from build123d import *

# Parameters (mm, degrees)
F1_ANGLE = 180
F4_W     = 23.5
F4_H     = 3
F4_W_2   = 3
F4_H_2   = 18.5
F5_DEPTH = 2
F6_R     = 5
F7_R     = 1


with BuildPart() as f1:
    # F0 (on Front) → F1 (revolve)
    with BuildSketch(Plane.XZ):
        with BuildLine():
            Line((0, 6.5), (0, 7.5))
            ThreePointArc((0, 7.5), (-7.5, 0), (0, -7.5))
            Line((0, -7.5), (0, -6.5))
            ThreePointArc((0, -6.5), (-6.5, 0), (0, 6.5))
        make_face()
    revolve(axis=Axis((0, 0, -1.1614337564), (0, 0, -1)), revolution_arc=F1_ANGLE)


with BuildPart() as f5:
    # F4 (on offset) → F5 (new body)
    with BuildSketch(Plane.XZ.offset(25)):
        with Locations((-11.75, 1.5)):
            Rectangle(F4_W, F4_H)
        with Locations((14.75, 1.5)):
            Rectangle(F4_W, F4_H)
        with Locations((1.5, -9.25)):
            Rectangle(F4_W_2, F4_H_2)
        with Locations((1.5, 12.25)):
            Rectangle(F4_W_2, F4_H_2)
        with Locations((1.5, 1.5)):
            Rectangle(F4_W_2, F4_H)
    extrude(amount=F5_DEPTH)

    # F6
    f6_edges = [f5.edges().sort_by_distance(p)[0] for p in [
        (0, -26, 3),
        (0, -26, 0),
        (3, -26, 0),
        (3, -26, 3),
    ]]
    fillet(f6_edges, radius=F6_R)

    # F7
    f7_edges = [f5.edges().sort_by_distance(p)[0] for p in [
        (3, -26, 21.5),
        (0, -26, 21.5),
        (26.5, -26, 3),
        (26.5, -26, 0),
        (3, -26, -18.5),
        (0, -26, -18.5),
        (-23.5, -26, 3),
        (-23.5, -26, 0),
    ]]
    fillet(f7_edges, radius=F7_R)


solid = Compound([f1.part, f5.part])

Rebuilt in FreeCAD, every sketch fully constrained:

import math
import FreeCAD as App
import Part
import Sketcher
from FreeCAD import Vector
Q = App.Units.Quantity


def edges_at(feature, points):
    """Names of the edges that pass closest to the given points."""
    edges = feature.Shape.Edges
    near = lambda p: min(range(len(edges)), key=lambda i: edges[i].distToShape(Part.Vertex(*p))[0])
    return sorted({f"Edge{near(p) + 1}" for p in points})


def add_polygon(sketch, points):
    """Adds a closed chain of lines whose ends are joined by coincident constraints."""
    first, n = sketch.GeometryCount, len(points)
    for a, b in zip(points, points[1:] + points[:1]):
        sketch.addGeometry(Part.LineSegment(App.Vector(*a, 0), App.Vector(*b, 0)), False)
    for i in range(n):
        sketch.addConstraint(Sketcher.Constraint("Coincident", first + i, 2, first + (i + 1) % n, 1))

doc = App.newDocument("Part")
params = doc.addObject("Spreadsheet::Sheet", "Params")
for row, (alias, value) in enumerate([
    ("sketch1_radius", "7.5 mm"),
    ("sketch1_radius2", "6.5 mm"),
    ("revolution_angle", "180 deg"),
    ("sketch2_width", "3 mm"),
    ("sketch2_width2", "23.5 mm"),
    ("sketch2_height", "18.5 mm"),
    ("pad1_length", "2 mm"),
    ("fillet_radius", "5 mm"),
    ("fillet2_radius", "1 mm"),
], start=1):
    params.set(f"A{row}", alias)
    params.set(f"B{row}", "=" + value)
    params.setAlias(f"B{row}", alias)

body = doc.addObject("PartDesign::Body", "Body")

sketch1 = body.newObject("Sketcher::SketchObject", "Sketch")
sketch1.AttachmentSupport = (doc.getObject("XZ_Plane"), [""])
sketch1.MapMode = "FlatFace"
sketch1.addGeometry(Part.LineSegment(Vector(0, 6.5, 0), Vector(0, 7.5, 0)), False)
sketch1.addGeometry(Part.ArcOfCircle(Part.Circle(Vector(0, 0, 0), Vector(0, 0, 1), 7.5), math.radians(90), math.radians(270)), False)
sketch1.addGeometry(Part.LineSegment(Vector(0, -7.5, 0), Vector(0, -6.5, 0)), False)
sketch1.addGeometry(Part.ArcOfCircle(Part.Circle(Vector(0, 0, 0), Vector(0, 0, 1), 6.5), math.radians(90), math.radians(270)), False)
sketch1.addConstraint(Sketcher.Constraint("Coincident", 0, 2, 1, 1))
sketch1.addConstraint(Sketcher.Constraint("Coincident", 1, 2, 2, 1))
sketch1.addConstraint(Sketcher.Constraint("Coincident", 2, 2, 3, 2))
sketch1.addConstraint(Sketcher.Constraint("Coincident", 3, 1, 0, 1))
sketch1.addConstraint(Sketcher.Constraint("Vertical", 0))
sketch1.addConstraint(Sketcher.Constraint("Vertical", 2))
sketch1.addConstraint(Sketcher.Constraint("Coincident", 1, 3, -1, 1))
sketch1.addConstraint(Sketcher.Constraint("Coincident", 3, 3, -1, 1))
sketch1.addConstraint(Sketcher.Constraint("PointOnObject", 0, 2, -2))
sketch1.addConstraint(Sketcher.Constraint("PointOnObject", 1, 2, -2))
sketch1.addConstraint(Sketcher.Constraint("Radius", 1, Q("7.5 mm")))
sketch1.addConstraint(Sketcher.Constraint("Radius", 3, Q("6.5 mm")))
sketch1.setExpression("Constraints[10]", "Params.sketch1_radius")
sketch1.setExpression("Constraints[11]", "Params.sketch1_radius2")
revolution = body.newObject("PartDesign::Revolution", "Revolution")
revolution.Profile = sketch1
revolution.ReferenceAxis = (sketch1, ["V_Axis"])
revolution.setExpression("Angle", "Params.revolution_angle")
revolution.Reversed = True
body2 = doc.addObject("PartDesign::Body", "Body001")

sketch2 = body2.newObject("Sketcher::SketchObject", "Sketch001")
sketch2.AttachmentSupport = (doc.getObject("XZ_Plane001"), [""])
sketch2.MapMode = "FlatFace"
sketch2.AttachmentOffset = App.Placement(Vector(0, 0, 25), App.Rotation())
add_polygon(sketch2, [(-23.5, 3), (-23.5, 0), (0, 0), (0, -18.5), (3, -18.5), (3, 0), (26.5, 0), (26.5, 3), (3, 3), (3, 21.5), (0, 21.5), (0, 3)])
sketch2.addConstraint(Sketcher.Constraint("Vertical", 0))
sketch2.addConstraint(Sketcher.Constraint("Horizontal", 1))
sketch2.addConstraint(Sketcher.Constraint("Vertical", 2))
sketch2.addConstraint(Sketcher.Constraint("Horizontal", 3))
sketch2.addConstraint(Sketcher.Constraint("Vertical", 4))
sketch2.addConstraint(Sketcher.Constraint("Horizontal", 5))
sketch2.addConstraint(Sketcher.Constraint("Vertical", 6))
sketch2.addConstraint(Sketcher.Constraint("Horizontal", 7))
sketch2.addConstraint(Sketcher.Constraint("Vertical", 8))
sketch2.addConstraint(Sketcher.Constraint("Horizontal", 9))
sketch2.addConstraint(Sketcher.Constraint("Vertical", 10))
sketch2.addConstraint(Sketcher.Constraint("Horizontal", 11))
sketch2.addConstraint(Sketcher.Constraint("Coincident", 1, 2, -1, 1))
sketch2.addConstraint(Sketcher.Constraint("PointOnObject", 4, 2, -1))
sketch2.addConstraint(Sketcher.Constraint("PointOnObject", 9, 2, -2))
sketch2.addConstraint(Sketcher.Constraint("Horizontal", 7, 2, 10, 2))
sketch2.addConstraint(Sketcher.Constraint("Vertical", 4, 2, 7, 2))
sketch2.addConstraint(Sketcher.Constraint("Equal", 1, 5))
sketch2.addConstraint(Sketcher.Constraint("Equal", 9, 0))
sketch2.addConstraint(Sketcher.Constraint("Equal", 4, 8))
sketch2.addConstraint(Sketcher.Constraint("DistanceX", 3, 1, 3, 2, Q("3 mm")))
sketch2.addConstraint(Sketcher.Constraint("DistanceX", 1, 1, 1, 2, Q("23.5 mm")))
sketch2.addConstraint(Sketcher.Constraint("DistanceY", 2, 2, 2, 1, Q("18.5 mm")))
sketch2.setExpression("Constraints[32]", "Params.sketch2_width")
sketch2.setExpression("Constraints[33]", "Params.sketch2_width2")
sketch2.setExpression("Constraints[34]", "Params.sketch2_height")
pad1 = body2.newObject("PartDesign::Pad", "Pad")
pad1.Profile = sketch2
pad1.setExpression("Length", "Params.pad1_length")
doc.recompute()

fillet = body2.newObject("PartDesign::Fillet", "Fillet")
fillet.Base = (pad1, edges_at(pad1, [
    (0, -26, 3),
    (0, -26, 0),
    (3, -26, 0),
    (3, -26, 3),
]))
fillet.setExpression("Radius", "Params.fillet_radius")
doc.recompute()

fillet2 = body2.newObject("PartDesign::Fillet", "Fillet001")
fillet2.Base = (fillet, edges_at(fillet, [
    (3, -26, 21.5),
    (0, -26, 21.5),
    (26.5, -26, 3),
    (26.5, -26, 0),
    (3, -26, -18.5),
    (0, -26, -18.5),
    (-23.5, -26, 3),
    (-23.5, -26, 0),
]))
fillet2.setExpression("Radius", "Params.fillet2_radius")

doc.recompute()
